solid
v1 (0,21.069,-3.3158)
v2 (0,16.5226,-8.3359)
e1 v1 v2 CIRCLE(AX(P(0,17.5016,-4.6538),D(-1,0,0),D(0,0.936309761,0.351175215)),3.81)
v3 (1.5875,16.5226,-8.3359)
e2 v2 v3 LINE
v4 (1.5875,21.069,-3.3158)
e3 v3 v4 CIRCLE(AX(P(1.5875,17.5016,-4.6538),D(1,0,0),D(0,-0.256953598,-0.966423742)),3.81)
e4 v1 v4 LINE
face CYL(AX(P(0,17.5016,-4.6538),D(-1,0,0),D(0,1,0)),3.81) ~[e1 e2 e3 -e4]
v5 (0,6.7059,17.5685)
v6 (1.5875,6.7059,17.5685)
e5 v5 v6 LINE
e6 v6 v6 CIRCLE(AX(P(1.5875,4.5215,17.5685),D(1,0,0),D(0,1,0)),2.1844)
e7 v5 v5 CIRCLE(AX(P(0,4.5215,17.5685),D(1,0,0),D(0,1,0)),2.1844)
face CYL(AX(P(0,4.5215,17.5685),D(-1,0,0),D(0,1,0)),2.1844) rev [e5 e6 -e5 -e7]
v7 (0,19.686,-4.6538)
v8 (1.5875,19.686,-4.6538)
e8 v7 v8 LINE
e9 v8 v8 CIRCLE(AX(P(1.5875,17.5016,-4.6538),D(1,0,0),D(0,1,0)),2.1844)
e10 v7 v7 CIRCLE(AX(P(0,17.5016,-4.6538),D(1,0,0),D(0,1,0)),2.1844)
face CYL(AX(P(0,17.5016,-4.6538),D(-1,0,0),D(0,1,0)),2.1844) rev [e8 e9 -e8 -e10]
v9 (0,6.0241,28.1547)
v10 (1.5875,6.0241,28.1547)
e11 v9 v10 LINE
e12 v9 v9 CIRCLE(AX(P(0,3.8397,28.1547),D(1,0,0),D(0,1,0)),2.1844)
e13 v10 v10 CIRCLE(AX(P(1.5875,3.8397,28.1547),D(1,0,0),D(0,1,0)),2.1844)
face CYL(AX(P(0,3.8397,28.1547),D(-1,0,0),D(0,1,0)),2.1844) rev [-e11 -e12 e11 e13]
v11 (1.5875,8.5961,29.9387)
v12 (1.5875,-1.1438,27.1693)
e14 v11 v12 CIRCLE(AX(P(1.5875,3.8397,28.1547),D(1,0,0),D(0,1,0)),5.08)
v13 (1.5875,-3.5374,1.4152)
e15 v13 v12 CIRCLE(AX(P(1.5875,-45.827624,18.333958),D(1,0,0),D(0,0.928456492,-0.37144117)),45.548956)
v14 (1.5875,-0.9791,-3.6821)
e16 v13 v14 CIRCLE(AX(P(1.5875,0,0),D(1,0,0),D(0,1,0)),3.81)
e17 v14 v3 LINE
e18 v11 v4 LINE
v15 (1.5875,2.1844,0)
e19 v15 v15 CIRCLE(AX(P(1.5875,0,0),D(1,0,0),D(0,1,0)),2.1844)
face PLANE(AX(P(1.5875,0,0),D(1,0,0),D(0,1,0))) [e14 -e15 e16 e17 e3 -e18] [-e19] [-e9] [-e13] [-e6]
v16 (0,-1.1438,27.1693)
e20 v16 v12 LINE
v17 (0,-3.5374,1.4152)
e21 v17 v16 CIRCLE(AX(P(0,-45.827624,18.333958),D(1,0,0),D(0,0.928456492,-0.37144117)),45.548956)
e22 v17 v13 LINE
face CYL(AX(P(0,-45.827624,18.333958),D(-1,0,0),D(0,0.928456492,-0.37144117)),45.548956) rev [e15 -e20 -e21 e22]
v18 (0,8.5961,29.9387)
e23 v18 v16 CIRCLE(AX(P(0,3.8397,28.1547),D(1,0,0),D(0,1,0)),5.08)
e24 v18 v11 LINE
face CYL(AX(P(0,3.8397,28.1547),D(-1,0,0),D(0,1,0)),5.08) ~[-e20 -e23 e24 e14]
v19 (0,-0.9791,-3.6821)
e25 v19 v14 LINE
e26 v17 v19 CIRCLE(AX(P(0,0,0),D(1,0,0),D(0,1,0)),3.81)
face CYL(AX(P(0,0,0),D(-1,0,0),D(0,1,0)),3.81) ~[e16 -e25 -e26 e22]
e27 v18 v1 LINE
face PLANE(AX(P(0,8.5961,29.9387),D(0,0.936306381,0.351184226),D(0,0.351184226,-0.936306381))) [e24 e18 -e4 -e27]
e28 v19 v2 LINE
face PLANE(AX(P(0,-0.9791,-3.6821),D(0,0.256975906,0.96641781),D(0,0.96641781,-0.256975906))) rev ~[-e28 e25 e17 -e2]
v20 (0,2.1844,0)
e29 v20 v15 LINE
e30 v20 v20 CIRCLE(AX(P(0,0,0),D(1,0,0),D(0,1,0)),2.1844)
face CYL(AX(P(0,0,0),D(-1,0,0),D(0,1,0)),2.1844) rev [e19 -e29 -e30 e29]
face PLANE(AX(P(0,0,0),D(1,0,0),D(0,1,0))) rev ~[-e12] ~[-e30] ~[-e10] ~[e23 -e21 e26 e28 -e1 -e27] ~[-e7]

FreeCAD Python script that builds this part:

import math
import FreeCAD as App
import Part
import Sketcher
from FreeCAD import Vector
Q = App.Units.Quantity

doc = App.newDocument("Part")
body = doc.addObject("PartDesign::Body", "Body")

# Sketch on YZ plane
sketch1 = body.newObject("Sketcher::SketchObject", "Sketch")
sketch1.AttachmentSupport = (doc.getObject("YZ_Plane"), [""])
sketch1.MapMode = "FlatFace"
sketch1.addGeometry([
    Part.ArcOfCircle(Part.Circle(Vector(0, 0, 0), Vector(0, 0, 1), 3.81), math.radians(158.195239), math.radians(255.109171)),  # 0
    Part.LineSegment(Vector(-0.9791, -3.6821, 0), Vector(16.5226, -8.3359, 0)),  # 1
    Part.ArcOfCircle(Part.Circle(Vector(17.5016, -4.6538, 0), Vector(0, 0, 1), 3.81), math.radians(-104.889376), math.radians(20.559213)),  # 2
    Part.LineSegment(Vector(21.069, -3.3158, 0), Vector(8.5961, 29.9387, 0)),  # 3
    Part.ArcOfCircle(Part.Circle(Vector(3.8397, 28.1547, 0), Vector(0, 0, 1), 5.08), math.radians(20.559741), math.radians(191.184958)),  # 4
    Part.ArcOfCircle(Part.Circle(Vector(-45.8278, 18.334, 0), Vector(0, 0, 1), 45.549135), math.radians(-21.804493), math.radians(11.184736)),  # 5
    Part.Circle(Vector(0, 0, 0), Vector(0, 0, 1), 2.1844),  # 6
    Part.Circle(Vector(4.5215, 17.5685, 0), Vector(0, 0, 1), 2.1844),  # 7
    Part.Circle(Vector(3.8397, 28.1547, 0), Vector(0, 0, 1), 2.1844),  # 8
    Part.Circle(Vector(17.5016, -4.6538, 0), Vector(0, 0, 1), 2.1844),  # 9
], False)
sketch1.addConstraint([
    Sketcher.Constraint("Tangent", 0, 2, 1, 1),
    Sketcher.Constraint("Tangent", 1, 2, 2, 1),
    Sketcher.Constraint("Tangent", 2, 2, 3, 1),
    Sketcher.Constraint("Tangent", 3, 2, 4, 1),
    Sketcher.Constraint("Tangent", 4, 2, 5, 2),
    Sketcher.Constraint("Tangent", 5, 1, 0, 1),
    Sketcher.Constraint("Coincident", 0, 3, -1, 1),
    Sketcher.Constraint("Coincident", 6, 3, -1, 1),
    Sketcher.Constraint("Coincident", 8, 3, 4, 3),
    Sketcher.Constraint("Coincident", 9, 3, 2, 3),
    Sketcher.Constraint("Equal", 0, 2),
    Sketcher.Constraint("Equal", 6, 7),
    Sketcher.Constraint("Equal", 7, 8),
    Sketcher.Constraint("Equal", 8, 9),
    Sketcher.Constraint("Radius", 4, Q("0.2 in")),
    Sketcher.Constraint("Radius", 0, Q("0.15 in")),
    Sketcher.Constraint("Diameter", 6, Q("0.172 in")),
    Sketcher.Constraint("Angle", 1, Q("-14.8907 deg")),
    Sketcher.Constraint("Angle", 3, Q("110.5598 deg")),
    Sketcher.Constraint("Radius", 5, Q("45.5491 mm")),
    Sketcher.Constraint("DistanceX", -1, 1, 7, 3, Q("0.178 in")),
    Sketcher.Constraint("Distance", 3, Q("1.3983 in")),
    Sketcher.Constraint("DistanceY", -1, 1, 5, 3, Q("0.7218 in")),
    Sketcher.Constraint("DistanceY", 2, 3, 7, 3, Q("0.8749 in")),
])
pad1 = body.newObject("PartDesign::Pad", "Pad")
pad1.Profile = sketch1
pad1.Length = Q("0.0625 in")

doc.recompute()
